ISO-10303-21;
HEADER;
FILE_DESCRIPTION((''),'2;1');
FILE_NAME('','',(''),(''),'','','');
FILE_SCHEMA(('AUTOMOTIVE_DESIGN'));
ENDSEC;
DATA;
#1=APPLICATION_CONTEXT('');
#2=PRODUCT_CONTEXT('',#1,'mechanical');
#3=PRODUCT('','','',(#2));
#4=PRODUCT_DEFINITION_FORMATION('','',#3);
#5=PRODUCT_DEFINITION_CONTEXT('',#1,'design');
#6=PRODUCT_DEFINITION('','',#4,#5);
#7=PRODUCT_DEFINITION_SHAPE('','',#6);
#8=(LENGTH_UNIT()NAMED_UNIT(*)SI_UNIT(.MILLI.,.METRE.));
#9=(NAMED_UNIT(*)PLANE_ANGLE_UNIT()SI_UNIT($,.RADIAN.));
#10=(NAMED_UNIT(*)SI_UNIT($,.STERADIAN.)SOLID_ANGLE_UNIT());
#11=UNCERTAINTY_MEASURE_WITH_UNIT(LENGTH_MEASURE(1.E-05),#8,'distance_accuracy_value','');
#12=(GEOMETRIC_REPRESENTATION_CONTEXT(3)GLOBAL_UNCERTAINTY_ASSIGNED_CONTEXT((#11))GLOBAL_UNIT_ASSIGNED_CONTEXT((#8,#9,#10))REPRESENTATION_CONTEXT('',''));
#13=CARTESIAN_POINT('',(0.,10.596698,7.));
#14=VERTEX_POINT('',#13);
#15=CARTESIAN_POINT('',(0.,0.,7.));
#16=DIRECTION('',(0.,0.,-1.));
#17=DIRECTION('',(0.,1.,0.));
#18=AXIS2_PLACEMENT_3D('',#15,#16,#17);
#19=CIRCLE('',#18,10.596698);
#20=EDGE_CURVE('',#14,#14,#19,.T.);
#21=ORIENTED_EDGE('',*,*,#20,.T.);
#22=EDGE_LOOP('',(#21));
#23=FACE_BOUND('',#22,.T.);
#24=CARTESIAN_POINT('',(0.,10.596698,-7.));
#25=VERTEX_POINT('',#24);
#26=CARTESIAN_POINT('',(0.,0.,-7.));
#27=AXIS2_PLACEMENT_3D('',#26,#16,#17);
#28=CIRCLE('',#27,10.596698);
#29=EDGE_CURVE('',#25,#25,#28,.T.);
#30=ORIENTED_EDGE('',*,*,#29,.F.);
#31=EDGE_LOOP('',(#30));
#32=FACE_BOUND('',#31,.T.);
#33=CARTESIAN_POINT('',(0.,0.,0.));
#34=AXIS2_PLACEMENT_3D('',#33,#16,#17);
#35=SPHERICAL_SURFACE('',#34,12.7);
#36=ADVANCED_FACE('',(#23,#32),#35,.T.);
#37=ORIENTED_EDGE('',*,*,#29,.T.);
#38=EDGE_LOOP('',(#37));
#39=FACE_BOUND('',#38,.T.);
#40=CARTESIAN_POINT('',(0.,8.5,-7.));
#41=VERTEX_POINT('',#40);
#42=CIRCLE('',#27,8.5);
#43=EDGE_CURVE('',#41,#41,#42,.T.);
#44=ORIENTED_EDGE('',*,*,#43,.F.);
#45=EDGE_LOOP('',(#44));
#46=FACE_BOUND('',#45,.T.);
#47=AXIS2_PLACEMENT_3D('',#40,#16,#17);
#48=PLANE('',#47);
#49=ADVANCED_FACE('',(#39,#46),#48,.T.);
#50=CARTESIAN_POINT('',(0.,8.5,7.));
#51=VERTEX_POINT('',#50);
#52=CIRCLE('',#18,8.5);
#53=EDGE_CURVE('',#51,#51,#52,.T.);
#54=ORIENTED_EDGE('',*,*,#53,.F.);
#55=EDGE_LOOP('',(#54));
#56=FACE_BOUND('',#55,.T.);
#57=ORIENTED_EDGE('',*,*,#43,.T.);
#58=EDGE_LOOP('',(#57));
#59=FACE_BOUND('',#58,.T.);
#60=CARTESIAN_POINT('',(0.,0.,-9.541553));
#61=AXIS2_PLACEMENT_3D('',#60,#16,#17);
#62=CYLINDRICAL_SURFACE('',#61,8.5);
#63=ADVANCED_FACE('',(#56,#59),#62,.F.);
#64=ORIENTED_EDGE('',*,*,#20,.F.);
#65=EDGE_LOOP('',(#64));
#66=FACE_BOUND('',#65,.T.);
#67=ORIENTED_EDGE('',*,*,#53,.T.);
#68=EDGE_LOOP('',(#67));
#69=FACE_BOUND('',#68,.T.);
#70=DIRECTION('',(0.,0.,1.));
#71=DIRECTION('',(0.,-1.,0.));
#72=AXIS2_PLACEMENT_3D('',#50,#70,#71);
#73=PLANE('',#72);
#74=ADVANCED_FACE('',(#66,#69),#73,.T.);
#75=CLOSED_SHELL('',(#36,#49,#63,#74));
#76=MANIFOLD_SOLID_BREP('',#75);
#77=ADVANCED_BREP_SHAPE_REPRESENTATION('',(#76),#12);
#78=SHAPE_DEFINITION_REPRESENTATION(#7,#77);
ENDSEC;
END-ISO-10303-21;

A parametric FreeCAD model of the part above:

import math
import FreeCAD as App
import Part
import Sketcher
Q = App.Units.Quantity

doc = App.newDocument("Part")
body = doc.addObject("PartDesign::Body", "Body")

sketch1 = doc.addObject("Sketcher::SketchObject", "Sketch")
body.addObject(sketch1)
sketch1.AttachmentSupport = (doc.YZ_Plane, [""])
sketch1.MapMode = "FlatFace"
sketch1.addGeometry([
    Part.LineSegment(App.Vector(8.5, 7, 0), App.Vector(8.5, -7, 0)),
    Part.LineSegment(App.Vector(8.5, -7, 0), App.Vector(10.6, -7, 0)),
    Part.ArcOfCircle(Part.Circle(App.Vector(0, 0, 0), App.Vector(0, 0, 1), 12.7), math.radians(-33), math.radians(33)),
    Part.LineSegment(App.Vector(10.6, 7, 0), App.Vector(8.5, 7, 0)),
], False)
sketch1.addConstraint([
    Sketcher.Constraint("Coincident", 0, 2, 1, 1),
    Sketcher.Constraint("Coincident", 1, 2, 2, 1),
    Sketcher.Constraint("Coincident", 2, 2, 3, 1),
    Sketcher.Constraint("Coincident", 3, 2, 0, 1),
    Sketcher.Constraint("Vertical", 0),
    Sketcher.Constraint("Horizontal", 1),
    Sketcher.Constraint("Horizontal", 3),
    Sketcher.Constraint("Coincident", 2, 3, -1, 1),
    Sketcher.Constraint("Vertical", 1, 2, 2, 2),
    Sketcher.Constraint("Radius", 2, Q("12.7 mm")),
    Sketcher.Constraint("DistanceY", 0, 2, 0, 1, Q("14 mm")),
    Sketcher.Constraint("DistanceX", -1, 1, 0, 2, Q("8.5 mm")),
])
revolution = doc.addObject("PartDesign::Revolution", "Revolution")
body.addObject(revolution)
revolution.Profile = sketch1
revolution.ReferenceAxis = (sketch1, ["V_Axis"])
revolution.Angle = 360

doc.recompute()
